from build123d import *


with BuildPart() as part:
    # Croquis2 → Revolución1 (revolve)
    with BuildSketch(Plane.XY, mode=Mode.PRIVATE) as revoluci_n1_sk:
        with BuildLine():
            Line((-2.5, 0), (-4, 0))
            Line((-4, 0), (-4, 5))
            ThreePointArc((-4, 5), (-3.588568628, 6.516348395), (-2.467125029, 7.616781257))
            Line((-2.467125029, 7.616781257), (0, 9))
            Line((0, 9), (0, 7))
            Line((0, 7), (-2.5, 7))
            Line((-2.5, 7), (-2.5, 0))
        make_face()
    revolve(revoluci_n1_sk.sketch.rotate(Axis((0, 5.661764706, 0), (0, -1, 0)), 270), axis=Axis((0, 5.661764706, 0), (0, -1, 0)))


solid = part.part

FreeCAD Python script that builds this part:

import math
import FreeCAD as App
import Part
import Sketcher

V = App.Vector

doc = App.newDocument("Part")
body = doc.addObject("PartDesign::Body", "Body")

# Sketch on XY plane
sketch1 = body.newObject("Sketcher::SketchObject", "Sketch")
sketch1.AttachmentSupport = (doc.getObject("XY_Plane"), [""])
sketch1.MapMode = "FlatFace"
sketch1.addGeometry(Part.LineSegment(V(-4, 0, 0), V(-2.5, 0, 0)), False)
sketch1.addGeometry(Part.LineSegment(V(-2.5, 0, 0), V(-2.5, 7, 0)), False)
sketch1.addGeometry(Part.LineSegment(V(-2.5, 7, 0), V(0, 7, 0)), False)
sketch1.addGeometry(Part.LineSegment(V(0, 7, 0), V(0, 9, 0)), False)
sketch1.addGeometry(Part.LineSegment(V(0, 9, 0), V(-2.5, 7.6, 0)), False)
sketch1.addGeometry(Part.ArcOfCircle(Part.Circle(V(-1, 5, 0), V(0, 0, 1), 3), math.radians(119), math.radians(180)), False)
sketch1.addGeometry(Part.LineSegment(V(-4, 5, 0), V(-4, 0, 0)), False)
sketch1.addConstraint(Sketcher.Constraint("Coincident", 0, 2, 1, 1))
sketch1.addConstraint(Sketcher.Constraint("Coincident", 1, 2, 2, 1))
sketch1.addConstraint(Sketcher.Constraint("Coincident", 2, 2, 3, 1))
sketch1.addConstraint(Sketcher.Constraint("Coincident", 3, 2, 4, 1))
sketch1.addConstraint(Sketcher.Constraint("Tangent", 4, 2, 5, 1))
sketch1.addConstraint(Sketcher.Constraint("Tangent", 5, 2, 6, 1))
sketch1.addConstraint(Sketcher.Constraint("Coincident", 6, 2, 0, 1))
sketch1.addConstraint(Sketcher.Constraint("Horizontal", 0))
sketch1.addConstraint(Sketcher.Constraint("Vertical", 1))
sketch1.addConstraint(Sketcher.Constraint("Horizontal", 2))
sketch1.addConstraint(Sketcher.Constraint("Vertical", 3))
sketch1.addConstraint(Sketcher.Constraint("Vertical", 6))
sketch1.addConstraint(Sketcher.Constraint("PointOnObject", 0, 2, -1))
sketch1.addConstraint(Sketcher.Constraint("PointOnObject", 2, 2, -2))
sketch1.addConstraint(Sketcher.Constraint("Radius", 5, 3.0))
sketch1.addConstraint(Sketcher.Constraint("DistanceY", 1, 1, 1, 2, 7.0))
sketch1.addConstraint(Sketcher.Constraint("DistanceY", 3, 1, 3, 2, 2.0))
sketch1.addConstraint(Sketcher.Constraint("DistanceY", 6, 2, 6, 1, 5.0))
sketch1.addConstraint(Sketcher.Constraint("DistanceX", 0, 1, 0, 2, 1.5))
sketch1.addConstraint(Sketcher.Constraint("DistanceX", 2, 1, 2, 2, 2.5))
revolution = body.newObject("PartDesign::Revolution", "Revolution")
revolution.Profile = sketch1
revolution.ReferenceAxis = (sketch1, ["V_Axis"])
revolution.Angle = 360

doc.recompute()
